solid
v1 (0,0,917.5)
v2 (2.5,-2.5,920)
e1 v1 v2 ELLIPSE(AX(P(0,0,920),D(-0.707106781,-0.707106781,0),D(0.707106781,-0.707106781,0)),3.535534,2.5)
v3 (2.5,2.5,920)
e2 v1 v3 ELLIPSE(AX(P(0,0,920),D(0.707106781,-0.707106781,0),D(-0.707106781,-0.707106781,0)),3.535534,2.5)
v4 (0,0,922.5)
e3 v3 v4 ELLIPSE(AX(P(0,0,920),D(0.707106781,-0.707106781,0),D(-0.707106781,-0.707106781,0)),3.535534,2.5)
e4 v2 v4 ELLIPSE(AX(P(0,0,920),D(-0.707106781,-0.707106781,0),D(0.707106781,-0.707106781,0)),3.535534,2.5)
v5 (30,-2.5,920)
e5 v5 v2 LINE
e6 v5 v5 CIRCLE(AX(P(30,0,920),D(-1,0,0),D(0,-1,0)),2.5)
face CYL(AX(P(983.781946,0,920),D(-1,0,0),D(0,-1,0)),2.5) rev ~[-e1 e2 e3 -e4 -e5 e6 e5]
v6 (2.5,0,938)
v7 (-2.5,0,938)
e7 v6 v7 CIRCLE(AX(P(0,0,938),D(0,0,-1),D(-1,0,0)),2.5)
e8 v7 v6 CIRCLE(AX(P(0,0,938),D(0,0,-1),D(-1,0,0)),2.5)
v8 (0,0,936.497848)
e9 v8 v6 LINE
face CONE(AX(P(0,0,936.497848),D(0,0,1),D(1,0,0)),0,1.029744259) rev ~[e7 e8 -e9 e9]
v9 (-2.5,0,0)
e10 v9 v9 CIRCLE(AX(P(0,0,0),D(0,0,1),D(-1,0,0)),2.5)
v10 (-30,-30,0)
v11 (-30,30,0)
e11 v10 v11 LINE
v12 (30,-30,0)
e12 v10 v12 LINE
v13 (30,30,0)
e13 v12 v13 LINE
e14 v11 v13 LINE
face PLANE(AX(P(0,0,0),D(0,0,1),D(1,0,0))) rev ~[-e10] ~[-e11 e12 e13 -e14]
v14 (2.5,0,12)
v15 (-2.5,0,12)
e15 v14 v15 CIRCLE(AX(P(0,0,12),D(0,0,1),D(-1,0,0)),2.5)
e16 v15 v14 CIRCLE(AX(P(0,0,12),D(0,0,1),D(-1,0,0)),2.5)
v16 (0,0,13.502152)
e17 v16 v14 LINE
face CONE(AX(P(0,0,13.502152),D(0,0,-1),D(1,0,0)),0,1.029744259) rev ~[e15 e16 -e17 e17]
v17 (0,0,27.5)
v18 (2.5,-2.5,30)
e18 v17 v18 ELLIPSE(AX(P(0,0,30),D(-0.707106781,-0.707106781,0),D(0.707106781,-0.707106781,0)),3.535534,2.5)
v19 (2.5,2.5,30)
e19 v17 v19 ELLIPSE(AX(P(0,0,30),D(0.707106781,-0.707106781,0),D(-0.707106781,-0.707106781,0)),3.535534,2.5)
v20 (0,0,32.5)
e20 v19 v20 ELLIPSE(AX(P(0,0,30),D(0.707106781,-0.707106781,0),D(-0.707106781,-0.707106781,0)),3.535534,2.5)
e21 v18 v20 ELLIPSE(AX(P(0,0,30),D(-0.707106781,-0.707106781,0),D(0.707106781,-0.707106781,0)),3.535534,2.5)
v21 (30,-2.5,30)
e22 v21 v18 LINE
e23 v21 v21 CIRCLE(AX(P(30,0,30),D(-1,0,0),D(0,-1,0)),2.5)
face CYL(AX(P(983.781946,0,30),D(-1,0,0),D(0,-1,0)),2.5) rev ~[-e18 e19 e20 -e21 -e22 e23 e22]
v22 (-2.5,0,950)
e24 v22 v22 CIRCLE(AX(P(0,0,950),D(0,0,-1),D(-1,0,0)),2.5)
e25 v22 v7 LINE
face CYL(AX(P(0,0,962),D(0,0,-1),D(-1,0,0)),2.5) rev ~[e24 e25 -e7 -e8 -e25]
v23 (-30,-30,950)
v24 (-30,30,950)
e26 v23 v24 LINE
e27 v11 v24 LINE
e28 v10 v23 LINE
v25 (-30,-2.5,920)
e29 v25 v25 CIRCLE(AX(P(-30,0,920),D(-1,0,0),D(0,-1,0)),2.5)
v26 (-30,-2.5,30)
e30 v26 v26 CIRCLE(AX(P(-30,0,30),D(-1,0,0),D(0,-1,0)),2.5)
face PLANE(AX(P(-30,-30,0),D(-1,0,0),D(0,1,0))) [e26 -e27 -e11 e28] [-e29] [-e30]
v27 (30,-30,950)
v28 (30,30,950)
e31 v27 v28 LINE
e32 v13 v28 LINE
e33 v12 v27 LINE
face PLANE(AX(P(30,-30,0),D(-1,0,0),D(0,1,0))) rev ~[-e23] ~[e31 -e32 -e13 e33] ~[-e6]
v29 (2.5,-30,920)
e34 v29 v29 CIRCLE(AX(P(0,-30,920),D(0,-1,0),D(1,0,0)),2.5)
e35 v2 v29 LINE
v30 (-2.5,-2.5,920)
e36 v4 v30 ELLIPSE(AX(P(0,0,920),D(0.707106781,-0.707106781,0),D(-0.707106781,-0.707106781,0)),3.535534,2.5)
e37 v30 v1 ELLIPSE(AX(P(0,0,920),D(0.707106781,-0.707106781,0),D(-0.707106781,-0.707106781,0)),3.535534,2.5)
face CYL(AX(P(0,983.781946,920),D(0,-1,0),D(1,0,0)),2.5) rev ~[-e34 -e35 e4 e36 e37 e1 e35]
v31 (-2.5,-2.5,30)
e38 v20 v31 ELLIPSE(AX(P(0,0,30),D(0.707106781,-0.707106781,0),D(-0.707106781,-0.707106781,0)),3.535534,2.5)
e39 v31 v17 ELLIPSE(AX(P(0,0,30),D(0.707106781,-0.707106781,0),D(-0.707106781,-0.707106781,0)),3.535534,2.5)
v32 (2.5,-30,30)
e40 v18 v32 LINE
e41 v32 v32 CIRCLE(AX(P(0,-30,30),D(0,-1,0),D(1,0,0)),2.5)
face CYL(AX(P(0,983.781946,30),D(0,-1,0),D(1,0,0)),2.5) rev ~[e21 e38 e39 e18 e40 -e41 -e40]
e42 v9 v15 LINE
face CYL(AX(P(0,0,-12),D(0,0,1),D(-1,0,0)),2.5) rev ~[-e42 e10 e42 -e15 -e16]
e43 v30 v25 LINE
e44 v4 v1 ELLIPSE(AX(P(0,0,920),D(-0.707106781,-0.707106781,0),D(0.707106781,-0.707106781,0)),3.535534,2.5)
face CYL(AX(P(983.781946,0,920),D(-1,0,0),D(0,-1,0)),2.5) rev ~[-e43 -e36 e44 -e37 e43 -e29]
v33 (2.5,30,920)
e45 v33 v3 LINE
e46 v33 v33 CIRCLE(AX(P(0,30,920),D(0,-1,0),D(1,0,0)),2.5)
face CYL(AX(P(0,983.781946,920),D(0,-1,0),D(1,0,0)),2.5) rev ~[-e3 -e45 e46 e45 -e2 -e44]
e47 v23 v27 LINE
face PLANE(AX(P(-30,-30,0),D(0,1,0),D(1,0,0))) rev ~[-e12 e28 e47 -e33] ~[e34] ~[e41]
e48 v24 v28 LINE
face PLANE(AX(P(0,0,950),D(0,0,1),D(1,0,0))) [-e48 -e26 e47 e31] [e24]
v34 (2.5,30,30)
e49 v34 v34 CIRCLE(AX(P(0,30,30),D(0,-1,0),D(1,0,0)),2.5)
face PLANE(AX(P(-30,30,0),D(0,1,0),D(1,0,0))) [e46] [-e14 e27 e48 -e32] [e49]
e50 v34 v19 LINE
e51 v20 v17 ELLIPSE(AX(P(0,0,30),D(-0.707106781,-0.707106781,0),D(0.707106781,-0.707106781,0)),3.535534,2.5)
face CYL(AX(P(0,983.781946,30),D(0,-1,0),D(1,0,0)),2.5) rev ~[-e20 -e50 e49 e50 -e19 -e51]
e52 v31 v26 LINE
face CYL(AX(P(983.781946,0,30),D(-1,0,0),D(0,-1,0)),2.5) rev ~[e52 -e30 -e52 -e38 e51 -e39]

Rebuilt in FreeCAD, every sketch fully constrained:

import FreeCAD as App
import Part
import Sketcher
Q = App.Units.Quantity


def add_polygon(sketch, points):
    """Adds a closed chain of lines whose ends are joined by coincident constraints."""
    first, n = sketch.GeometryCount, len(points)
    for a, b in zip(points, points[1:] + points[:1]):
        sketch.addGeometry(Part.LineSegment(App.Vector(*a, 0), App.Vector(*b, 0)), False)
    for i in range(n):
        sketch.addConstraint(Sketcher.Constraint("Coincident", first + i, 2, first + (i + 1) % n, 1))

doc = App.newDocument("Part")
body = doc.addObject("PartDesign::Body", "Body")

sketch1 = doc.addObject("Sketcher::SketchObject", "Sketch")
body.addObject(sketch1)
sketch1.AttachmentSupport = (doc.XY_Plane, [""])
sketch1.MapMode = "FlatFace"
add_polygon(sketch1, [(-30, 30), (-30, -30), (30, -30), (30, 30)])
sketch1.addConstraint(Sketcher.Constraint("Vertical", 0))
sketch1.addConstraint(Sketcher.Constraint("Horizontal", 1))
sketch1.addConstraint(Sketcher.Constraint("Vertical", 2))
sketch1.addConstraint(Sketcher.Constraint("Horizontal", 3))
sketch1.addConstraint(Sketcher.Constraint("Symmetric", 0, 2, 2, 2, -1, 1))
sketch1.addConstraint(Sketcher.Constraint("Equal", 3, 0))
sketch1.addConstraint(Sketcher.Constraint("DistanceX", 1, 1, 1, 2, Q("60 mm")))
pad1 = doc.addObject("PartDesign::Pad", "Pad")
body.addObject(pad1)
pad1.Profile = sketch1
pad1.Length = 950

sketch2 = doc.addObject("Sketcher::SketchObject", "Sketch001")
body.addObject(sketch2)
sketch2.AttachmentSupport = (doc.XY_Plane, [""])
sketch2.MapMode = "FlatFace"
sketch2.AttachmentOffset = App.Placement(App.Vector(0, 0, 950), App.Rotation())
sketch2.addGeometry(Part.Circle(App.Vector(0, 0, 0), App.Vector(0, 0, 1), 2.5), False)
sketch2.addConstraint(Sketcher.Constraint("Coincident", 0, 3, -1, 1))
sketch2.addConstraint(Sketcher.Constraint("Diameter", 0, Q("5 mm")))
doc.recompute()
hole = doc.addObject("PartDesign::Hole", "Hole")
body.addObject(hole)
hole.Profile = sketch2
hole.ThreadType = "None"
hole.Diameter = 5
hole.DepthType = "Dimension"
hole.Depth = 12
hole.DrillPoint = "Angled"
hole.DrillPointAngle = 118

sketch3 = doc.addObject("Sketcher::SketchObject", "Sketch002")
body.addObject(sketch3)
sketch3.AttachmentSupport = (doc.XY_Plane, [""])
sketch3.MapMode = "FlatFace"
sketch3.addGeometry(Part.Circle(App.Vector(0, 0, 0), App.Vector(0, 0, 1), 2.5), False)
sketch3.addConstraint(Sketcher.Constraint("Coincident", 0, 3, -1, 1))
sketch3.addConstraint(Sketcher.Constraint("Diameter", 0, Q("5 mm")))
doc.recompute()
hole2 = doc.addObject("PartDesign::Hole", "Hole001")
body.addObject(hole2)
hole2.Profile = sketch3
hole2.ThreadType = "None"
hole2.Diameter = 5
hole2.DepthType = "Dimension"
hole2.Depth = 12
hole2.DrillPoint = "Angled"
hole2.DrillPointAngle = 118
hole2.Reversed = True

sketch4 = doc.addObject("Sketcher::SketchObject", "Sketch003")
body.addObject(sketch4)
sketch4.AttachmentSupport = (doc.XZ_Plane, [""])
sketch4.MapMode = "FlatFace"
sketch4.AttachmentOffset = App.Placement(App.Vector(0, 0, -30), App.Rotation())
sketch4.addGeometry(Part.Circle(App.Vector(0, 920, 0), App.Vector(0, 0, 1), 2.5), False)
sketch4.addGeometry(Part.Circle(App.Vector(0, 30, 0), App.Vector(0, 0, 1), 2.5), False)
sketch4.addConstraint(Sketcher.Constraint("Equal", 0, 1))
sketch4.addConstraint(Sketcher.Constraint("PointOnObject", 0, 3, -2))
sketch4.addConstraint(Sketcher.Constraint("PointOnObject", 1, 3, -2))
sketch4.addConstraint(Sketcher.Constraint("Diameter", 0, Q("5 mm")))
sketch4.addConstraint(Sketcher.Constraint("DistanceY", -1, 1, 0, 3, Q("920 mm")))
sketch4.addConstraint(Sketcher.Constraint("DistanceY", -1, 1, 1, 3, Q("30 mm")))
doc.recompute()
hole3 = doc.addObject("PartDesign::Hole", "Hole002")
body.addObject(hole3)
hole3.Profile = sketch4
hole3.ThreadType = "None"
hole3.Diameter = 5
hole3.DepthType = "ThroughAll"
hole3.Reversed = True

sketch5 = doc.addObject("Sketcher::SketchObject", "Sketch004")
body.addObject(sketch5)
sketch5.AttachmentSupport = (doc.YZ_Plane, [""])
sketch5.MapMode = "FlatFace"
sketch5.AttachmentOffset = App.Placement(App.Vector(0, 0, 30), App.Rotation())
sketch5.addGeometry(Part.Circle(App.Vector(0, 920, 0), App.Vector(0, 0, 1), 2.5), False)
sketch5.addGeometry(Part.Circle(App.Vector(0, 30, 0), App.Vector(0, 0, 1), 2.5), False)
sketch5.addConstraint(Sketcher.Constraint("Equal", 0, 1))
sketch5.addConstraint(Sketcher.Constraint("PointOnObject", 0, 3, -2))
sketch5.addConstraint(Sketcher.Constraint("PointOnObject", 1, 3, -2))
sketch5.addConstraint(Sketcher.Constraint("Diameter", 0, Q("5 mm")))
sketch5.addConstraint(Sketcher.Constraint("DistanceY", -1, 1, 0, 3, Q("920 mm")))
sketch5.addConstraint(Sketcher.Constraint("DistanceY", -1, 1, 1, 3, Q("30 mm")))
doc.recompute()
hole4 = doc.addObject("PartDesign::Hole", "Hole003")
body.addObject(hole4)
hole4.Profile = sketch5
hole4.ThreadType = "None"
hole4.Diameter = 5
hole4.DepthType = "ThroughAll"

doc.recompute()
